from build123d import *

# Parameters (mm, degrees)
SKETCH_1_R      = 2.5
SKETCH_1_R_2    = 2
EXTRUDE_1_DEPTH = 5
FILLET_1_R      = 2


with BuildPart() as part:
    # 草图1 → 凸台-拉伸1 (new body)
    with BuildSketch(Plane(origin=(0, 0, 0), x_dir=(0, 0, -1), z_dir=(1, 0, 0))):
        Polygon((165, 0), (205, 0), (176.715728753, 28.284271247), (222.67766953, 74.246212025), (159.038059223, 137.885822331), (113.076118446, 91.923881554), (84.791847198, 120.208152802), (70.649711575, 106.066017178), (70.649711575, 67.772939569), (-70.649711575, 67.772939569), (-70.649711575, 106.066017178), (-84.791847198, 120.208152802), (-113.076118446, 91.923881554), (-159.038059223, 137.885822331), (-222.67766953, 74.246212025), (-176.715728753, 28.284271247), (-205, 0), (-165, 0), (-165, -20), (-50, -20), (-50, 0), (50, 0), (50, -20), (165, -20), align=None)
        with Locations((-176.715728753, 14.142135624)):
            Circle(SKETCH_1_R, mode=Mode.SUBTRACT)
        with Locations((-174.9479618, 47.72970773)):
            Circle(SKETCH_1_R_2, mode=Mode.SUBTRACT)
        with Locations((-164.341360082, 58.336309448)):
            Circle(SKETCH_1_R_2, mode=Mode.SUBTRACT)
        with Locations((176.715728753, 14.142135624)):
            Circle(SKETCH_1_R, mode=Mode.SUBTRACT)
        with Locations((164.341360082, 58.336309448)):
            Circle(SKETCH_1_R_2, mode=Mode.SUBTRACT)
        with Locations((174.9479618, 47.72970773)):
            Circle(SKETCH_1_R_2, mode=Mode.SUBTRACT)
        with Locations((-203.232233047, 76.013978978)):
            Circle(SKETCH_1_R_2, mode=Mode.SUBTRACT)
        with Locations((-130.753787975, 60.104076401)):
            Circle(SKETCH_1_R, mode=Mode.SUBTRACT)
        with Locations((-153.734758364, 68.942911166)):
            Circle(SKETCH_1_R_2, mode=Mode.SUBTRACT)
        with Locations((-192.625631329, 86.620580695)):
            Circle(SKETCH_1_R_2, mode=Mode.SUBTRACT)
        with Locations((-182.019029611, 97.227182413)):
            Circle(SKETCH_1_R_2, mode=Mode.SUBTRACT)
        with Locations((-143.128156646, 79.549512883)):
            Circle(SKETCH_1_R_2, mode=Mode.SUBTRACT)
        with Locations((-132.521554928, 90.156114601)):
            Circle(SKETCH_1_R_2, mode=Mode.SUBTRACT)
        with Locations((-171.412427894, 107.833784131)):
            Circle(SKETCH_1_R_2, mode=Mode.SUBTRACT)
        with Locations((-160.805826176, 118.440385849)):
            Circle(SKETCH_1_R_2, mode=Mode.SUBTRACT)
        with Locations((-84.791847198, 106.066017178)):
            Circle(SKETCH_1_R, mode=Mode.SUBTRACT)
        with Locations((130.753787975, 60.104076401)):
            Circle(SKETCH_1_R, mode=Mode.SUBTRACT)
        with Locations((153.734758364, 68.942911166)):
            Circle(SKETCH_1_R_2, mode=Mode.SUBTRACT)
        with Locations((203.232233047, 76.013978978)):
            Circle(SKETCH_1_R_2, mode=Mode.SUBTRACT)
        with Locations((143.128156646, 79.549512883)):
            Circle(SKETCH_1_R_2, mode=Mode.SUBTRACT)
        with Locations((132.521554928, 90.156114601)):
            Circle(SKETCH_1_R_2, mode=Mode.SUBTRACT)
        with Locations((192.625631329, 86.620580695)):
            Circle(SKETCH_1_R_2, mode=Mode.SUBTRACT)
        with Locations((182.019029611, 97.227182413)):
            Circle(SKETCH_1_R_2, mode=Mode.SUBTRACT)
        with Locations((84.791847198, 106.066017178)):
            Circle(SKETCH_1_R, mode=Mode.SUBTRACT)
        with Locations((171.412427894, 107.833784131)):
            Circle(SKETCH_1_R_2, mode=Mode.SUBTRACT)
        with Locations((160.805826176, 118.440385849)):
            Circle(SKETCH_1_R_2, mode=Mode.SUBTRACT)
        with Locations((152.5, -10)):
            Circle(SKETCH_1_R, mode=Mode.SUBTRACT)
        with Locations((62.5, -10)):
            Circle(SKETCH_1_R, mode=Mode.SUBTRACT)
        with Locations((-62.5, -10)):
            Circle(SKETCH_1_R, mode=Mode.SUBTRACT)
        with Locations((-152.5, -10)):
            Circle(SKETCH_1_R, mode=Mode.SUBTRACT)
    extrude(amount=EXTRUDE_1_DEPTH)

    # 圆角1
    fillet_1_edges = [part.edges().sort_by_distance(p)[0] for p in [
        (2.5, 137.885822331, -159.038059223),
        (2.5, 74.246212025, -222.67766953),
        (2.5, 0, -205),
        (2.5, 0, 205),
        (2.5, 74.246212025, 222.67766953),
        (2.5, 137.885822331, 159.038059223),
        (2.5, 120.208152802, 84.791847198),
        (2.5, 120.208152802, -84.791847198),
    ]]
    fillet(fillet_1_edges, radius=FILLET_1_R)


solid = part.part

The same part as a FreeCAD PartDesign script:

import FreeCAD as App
import Part
import Sketcher
Q = App.Units.Quantity


def edges_at(feature, points):
    """Names of the edges that pass closest to the given points."""
    edges = feature.Shape.Edges
    near = lambda p: min(range(len(edges)), key=lambda i: edges[i].distToShape(Part.Vertex(*p))[0])
    return sorted({f"Edge{near(p) + 1}" for p in points})


def add_polygon(sketch, points):
    """Adds a closed chain of lines whose ends are joined by coincident constraints."""
    first, n = sketch.GeometryCount, len(points)
    for a, b in zip(points, points[1:] + points[:1]):
        sketch.addGeometry(Part.LineSegment(App.Vector(*a, 0), App.Vector(*b, 0)), False)
    for i in range(n):
        sketch.addConstraint(Sketcher.Constraint("Coincident", first + i, 2, first + (i + 1) % n, 1))

doc = App.newDocument("Part")
body = doc.addObject("PartDesign::Body", "Body")

# Sketch on YZ plane
sketch1 = body.newObject("Sketcher::SketchObject", "Sketch")
sketch1.AttachmentSupport = (doc.getObject("YZ_Plane"), [""])
sketch1.MapMode = "FlatFace"
add_polygon(sketch1, [(0, -165), (0, -205), (28.3, -176.7), (74.2, -222.7), (137.9, -159), (91.9, -113.1), (120.2, -84.8), (106.1, -70.6), (67.8, -70.6), (67.8, 70.6), (106.1, 70.6), (120.2, 84.8), (91.9, 113.1), (137.9, 159), (74.2, 222.7), (28.3, 176.7), (0, 205), (0, 165), (-20, 165), (-20, 50), (0, 50), (0, -50), (-20, -50), (-20, -165)])  # lines 0-23
sketch1.addGeometry(Part.Circle(App.Vector(-10, 152.5, 0), App.Vector(0, 0, 1), 2.5), False)  # 24
sketch1.addGeometry(Part.Circle(App.Vector(14.1, 176.7, 0), App.Vector(0, 0, 1), 2.5), False)  # 25
sketch1.addGeometry(Part.Circle(App.Vector(-10, 62.5, 0), App.Vector(0, 0, 1), 2.5), False)  # 26
sketch1.addGeometry(Part.Circle(App.Vector(47.7, 174.9, 0), App.Vector(0, 0, 1), 2), False)  # 27
sketch1.addGeometry(Part.Circle(App.Vector(-10, -62.5, 0), App.Vector(0, 0, 1), 2.5), False)  # 28
sketch1.addGeometry(Part.Circle(App.Vector(-10, -152.5, 0), App.Vector(0, 0, 1), 2.5), False)  # 29
sketch1.addGeometry(Part.Circle(App.Vector(14.1, -176.7, 0), App.Vector(0, 0, 1), 2.5), False)  # 30
sketch1.addGeometry(Part.Circle(App.Vector(47.7, -174.9, 0), App.Vector(0, 0, 1), 2), False)  # 31
sketch1.addGeometry(Part.Circle(App.Vector(58.3, 164.3, 0), App.Vector(0, 0, 1), 2), False)  # 32
sketch1.addGeometry(Part.Circle(App.Vector(60.1, 130.8, 0), App.Vector(0, 0, 1), 2.5), False)  # 33
sketch1.addGeometry(Part.Circle(App.Vector(68.9, 153.7, 0), App.Vector(0, 0, 1), 2), False)  # 34
sketch1.addGeometry(Part.Circle(App.Vector(76, 203.2, 0), App.Vector(0, 0, 1), 2), False)  # 35
sketch1.addGeometry(Part.Circle(App.Vector(86.6, 192.6, 0), App.Vector(0, 0, 1), 2), False)  # 36
sketch1.addGeometry(Part.Circle(App.Vector(79.5, 143.1, 0), App.Vector(0, 0, 1), 2), False)  # 37
sketch1.addGeometry(Part.Circle(App.Vector(97.2, 182, 0), App.Vector(0, 0, 1), 2), False)  # 38
sketch1.addGeometry(Part.Circle(App.Vector(90.2, 132.5, 0), App.Vector(0, 0, 1), 2), False)  # 39
sketch1.addGeometry(Part.Circle(App.Vector(107.8, 171.4, 0), App.Vector(0, 0, 1), 2), False)  # 40
sketch1.addGeometry(Part.Circle(App.Vector(118.4, 160.8, 0), App.Vector(0, 0, 1), 2), False)  # 41
sketch1.addGeometry(Part.Circle(App.Vector(106.1, 84.8, 0), App.Vector(0, 0, 1), 2.5), False)  # 42
sketch1.addGeometry(Part.Circle(App.Vector(60.1, -130.8, 0), App.Vector(0, 0, 1), 2.5), False)  # 43
sketch1.addGeometry(Part.Circle(App.Vector(68.9, -153.7, 0), App.Vector(0, 0, 1), 2), False)  # 44
sketch1.addGeometry(Part.Circle(App.Vector(58.3, -164.3, 0), App.Vector(0, 0, 1), 2), False)  # 45
sketch1.addGeometry(Part.Circle(App.Vector(79.5, -143.1, 0), App.Vector(0, 0, 1), 2), False)  # 46
sketch1.addGeometry(Part.Circle(App.Vector(76, -203.2, 0), App.Vector(0, 0, 1), 2), False)  # 47
sketch1.addGeometry(Part.Circle(App.Vector(86.6, -192.6, 0), App.Vector(0, 0, 1), 2), False)  # 48
sketch1.addGeometry(Part.Circle(App.Vector(106.1, -84.8, 0), App.Vector(0, 0, 1), 2.5), False)  # 49
sketch1.addGeometry(Part.Circle(App.Vector(90.2, -132.5, 0), App.Vector(0, 0, 1), 2), False)  # 50
sketch1.addGeometry(Part.Circle(App.Vector(97.2, -182, 0), App.Vector(0, 0, 1), 2), False)  # 51
sketch1.addGeometry(Part.Circle(App.Vector(107.8, -171.4, 0), App.Vector(0, 0, 1), 2), False)  # 52
sketch1.addGeometry(Part.Circle(App.Vector(118.4, -160.8, 0), App.Vector(0, 0, 1), 2), False)  # 53
sketch1.addConstraint([
    Sketcher.Constraint("Vertical", 0),
    Sketcher.Constraint("Horizontal", 7),
    Sketcher.Constraint("Vertical", 8),
    Sketcher.Constraint("Horizontal", 9),
    Sketcher.Constraint("Vertical", 16),
    Sketcher.Constraint("Horizontal", 17),
    Sketcher.Constraint("Vertical", 18),
    Sketcher.Constraint("Horizontal", 19),
    Sketcher.Constraint("Vertical", 20),
    Sketcher.Constraint("Horizontal", 21),
    Sketcher.Constraint("Vertical", 22),
    Sketcher.Constraint("Horizontal", 23),
    Sketcher.Constraint("Equal", 24, 25),
    Sketcher.Constraint("Equal", 25, 26),
    Sketcher.Constraint("Equal", 26, 28),
    Sketcher.Constraint("Equal", 28, 29),
    Sketcher.Constraint("Equal", 29, 30),
    Sketcher.Constraint("Equal", 27, 31),
    Sketcher.Constraint("Equal", 31, 32),
    Sketcher.Constraint("Equal", 30, 33),
    Sketcher.Constraint("Equal", 32, 34),
    Sketcher.Constraint("Equal", 34, 35),
    Sketcher.Constraint("Equal", 35, 36),
    Sketcher.Constraint("Equal", 36, 37),
    Sketcher.Constraint("Equal", 37, 38),
    Sketcher.Constraint("Equal", 38, 39),
    Sketcher.Constraint("Equal", 39, 40),
    Sketcher.Constraint("Equal", 40, 41),
    Sketcher.Constraint("Equal", 33, 42),
    Sketcher.Constraint("Equal", 42, 43),
    Sketcher.Constraint("Equal", 41, 44),
    Sketcher.Constraint("Equal", 44, 45),
    Sketcher.Constraint("Equal", 45, 46),
    Sketcher.Constraint("Equal", 46, 47),
    Sketcher.Constraint("Equal", 47, 48),
    Sketcher.Constraint("Equal", 43, 49),
    Sketcher.Constraint("Equal", 48, 50),
    Sketcher.Constraint("Equal", 50, 51),
    Sketcher.Constraint("Equal", 51, 52),
    Sketcher.Constraint("Equal", 52, 53),
    Sketcher.Constraint("Symmetric", 0, 2, 15, 2, -1, 1),
    Sketcher.Constraint("Symmetric", 19, 2, 20, 2, -1, 1),
    Sketcher.Constraint("Symmetric", 26, 3, 28, 3, -1),
    Sketcher.Constraint("Symmetric", 24, 3, 29, 3, -1),
    Sketcher.Constraint("Symmetric", 25, 3, 30, 3, -1),
    Sketcher.Constraint("Symmetric", 27, 3, 31, 3, -1),
    Sketcher.Constraint("Symmetric", 33, 3, 43, 3, -1),
    Sketcher.Constraint("Symmetric", 34, 3, 44, 3, -1),
    Sketcher.Constraint("Symmetric", 32, 3, 45, 3, -1),
    Sketcher.Constraint("Symmetric", 37, 3, 46, 3, -1),
    Sketcher.Constraint("Symmetric", 35, 3, 47, 3, -1),
    Sketcher.Constraint("Symmetric", 36, 3, 48, 3, -1),
    Sketcher.Constraint("Symmetric", 42, 3, 49, 3, -1),
    Sketcher.Constraint("Symmetric", 39, 3, 50, 3, -1),
    Sketcher.Constraint("Symmetric", 38, 3, 51, 3, -1),
    Sketcher.Constraint("Symmetric", 40, 3, 52, 3, -1),
    Sketcher.Constraint("Symmetric", 41, 3, 53, 3, -1),
    Sketcher.Constraint("Symmetric", 6, 2, 9, 2, -1),
    Sketcher.Constraint("Symmetric", 5, 2, 10, 2, -1),
    Sketcher.Constraint("Symmetric", 4, 2, 11, 2, -1),
    Sketcher.Constraint("Symmetric", 3, 2, 12, 2, -1),
    Sketcher.Constraint("Symmetric", 2, 2, 13, 2, -1),
    Sketcher.Constraint("Symmetric", 1, 2, 14, 2, -1),
    Sketcher.Constraint("Symmetric", 17, 2, 22, 2, -1),
    Sketcher.Constraint("PointOnObject", 0, 2, -2),
    Sketcher.Constraint("Perpendicular", 1, 2),
    Sketcher.Constraint("Perpendicular", 2, 3),
    Sketcher.Constraint("Perpendicular", 3, 4),
    Sketcher.Constraint("Perpendicular", 4, 5),
    Sketcher.Constraint("Perpendicular", 5, 6),
    Sketcher.Constraint("Perpendicular", 6, 10),
    Sketcher.Constraint("Horizontal", 30, 3, 1, 2),
    Sketcher.Constraint("Horizontal", 49, 3, 5, 2),
    Sketcher.Constraint("Vertical", 24, 3, 26, 3),
    Sketcher.Constraint("Vertical", 49, 3, 6, 2),
    Sketcher.Constraint("Equal", 2, 4),
    Sketcher.Constraint("Equal", 1, 5),
    Sketcher.Constraint("Diameter", 24, Q("5 mm")),
    Sketcher.Constraint("Diameter", 27, Q("4 mm")),
    Sketcher.Constraint("DistanceX", 17, 2, 17, 1, Q("20 mm")),
    Sketcher.Constraint("DistanceY", 0, 2, 0, 1, Q("40 mm")),
    Sketcher.Constraint("DistanceY", 18, 2, 18, 1, Q("115 mm")),
    Sketcher.Constraint("DistanceY", 20, 2, 20, 1, Q("100 mm")),
    Sketcher.Constraint("Distance", 1, Q("40 mm")),
    Sketcher.Constraint("Distance", 2, Q("65 mm")),
    Sketcher.Constraint("Distance", 3, Q("90 mm")),
    Sketcher.Constraint("Distance", 6, Q("20 mm")),
    Sketcher.Constraint("DistanceX", 24, 3, -1, 1, Q("10 mm")),
    Sketcher.Constraint("DistanceY", 26, 3, 24, 3, Q("90 mm")),
    Sketcher.Constraint("DistanceY", 28, 3, 26, 3, Q("125 mm")),
    Sketcher.Constraint("DistanceX", 27, 3, 32, 3, Q("10.606602 mm")),
    Sketcher.Constraint("DistanceY", 32, 3, 27, 3, Q("10.606602 mm")),
    Sketcher.Constraint("DistanceX", 32, 3, 34, 3, Q("10.606602 mm")),
    Sketcher.Constraint("DistanceY", 34, 3, 32, 3, Q("10.606602 mm")),
    Sketcher.Constraint("DistanceX", 35, 3, 36, 3, Q("10.606602 mm")),
    Sketcher.Constraint("DistanceY", 36, 3, 35, 3, Q("10.606602 mm")),
    Sketcher.Constraint("DistanceX", 34, 3, 37, 3, Q("10.606602 mm")),
    Sketcher.Constraint("DistanceY", 37, 3, 34, 3, Q("10.606602 mm")),
    Sketcher.Constraint("DistanceX", 36, 3, 38, 3, Q("10.606602 mm")),
    Sketcher.Constraint("DistanceY", 38, 3, 36, 3, Q("10.606602 mm")),
    Sketcher.Constraint("DistanceX", 37, 3, 39, 3, Q("10.606602 mm")),
    Sketcher.Constraint("DistanceY", 39, 3, 37, 3, Q("10.606602 mm")),
    Sketcher.Constraint("DistanceX", 38, 3, 40, 3, Q("10.606602 mm")),
    Sketcher.Constraint("DistanceY", 40, 3, 38, 3, Q("10.606602 mm")),
    Sketcher.Constraint("DistanceX", 40, 3, 41, 3, Q("10.606602 mm")),
    Sketcher.Constraint("DistanceY", 41, 3, 40, 3, Q("10.606602 mm")),
    Sketcher.Constraint("DistanceX", 7, 2, 7, 1, Q("38.293078 mm")),
    Sketcher.Constraint("DistanceY", -1, 1, 27, 3, Q("174.947962 mm")),
    Sketcher.Constraint("DistanceX", -1, 1, 32, 3, Q("58.336309 mm")),
    Sketcher.Constraint("DistanceX", -1, 1, 35, 3, Q("76.013979 mm")),
    Sketcher.Constraint("DistanceY", -1, 1, 36, 3, Q("192.625631 mm")),
    Sketcher.Constraint("DistanceX", 27, 3, 33, 3, Q("12.374369 mm")),
    Sketcher.Constraint("DistanceX", 25, 3, 33, 3, Q("45.961941 mm")),
    Sketcher.Constraint("DistanceY", 33, 3, 25, 3, Q("45.961941 mm")),
])
pad1 = body.newObject("PartDesign::Pad", "Pad")
pad1.Profile = sketch1
pad1.Length = 5
doc.recompute()

fillet = body.newObject("PartDesign::Fillet", "Fillet")
fillet.Base = (pad1, edges_at(pad1, [
    (2.5, 137.886, -159.038),
    (2.5, 74.246, -222.678),
    (2.5, 0, -205),
    (2.5, 0, 205),
    (2.5, 74.246, 222.678),
    (2.5, 137.886, 159.038),
    (2.5, 120.208, 84.792),
    (2.5, 120.208, -84.792),
]))
fillet.Radius = 2

doc.recompute()
